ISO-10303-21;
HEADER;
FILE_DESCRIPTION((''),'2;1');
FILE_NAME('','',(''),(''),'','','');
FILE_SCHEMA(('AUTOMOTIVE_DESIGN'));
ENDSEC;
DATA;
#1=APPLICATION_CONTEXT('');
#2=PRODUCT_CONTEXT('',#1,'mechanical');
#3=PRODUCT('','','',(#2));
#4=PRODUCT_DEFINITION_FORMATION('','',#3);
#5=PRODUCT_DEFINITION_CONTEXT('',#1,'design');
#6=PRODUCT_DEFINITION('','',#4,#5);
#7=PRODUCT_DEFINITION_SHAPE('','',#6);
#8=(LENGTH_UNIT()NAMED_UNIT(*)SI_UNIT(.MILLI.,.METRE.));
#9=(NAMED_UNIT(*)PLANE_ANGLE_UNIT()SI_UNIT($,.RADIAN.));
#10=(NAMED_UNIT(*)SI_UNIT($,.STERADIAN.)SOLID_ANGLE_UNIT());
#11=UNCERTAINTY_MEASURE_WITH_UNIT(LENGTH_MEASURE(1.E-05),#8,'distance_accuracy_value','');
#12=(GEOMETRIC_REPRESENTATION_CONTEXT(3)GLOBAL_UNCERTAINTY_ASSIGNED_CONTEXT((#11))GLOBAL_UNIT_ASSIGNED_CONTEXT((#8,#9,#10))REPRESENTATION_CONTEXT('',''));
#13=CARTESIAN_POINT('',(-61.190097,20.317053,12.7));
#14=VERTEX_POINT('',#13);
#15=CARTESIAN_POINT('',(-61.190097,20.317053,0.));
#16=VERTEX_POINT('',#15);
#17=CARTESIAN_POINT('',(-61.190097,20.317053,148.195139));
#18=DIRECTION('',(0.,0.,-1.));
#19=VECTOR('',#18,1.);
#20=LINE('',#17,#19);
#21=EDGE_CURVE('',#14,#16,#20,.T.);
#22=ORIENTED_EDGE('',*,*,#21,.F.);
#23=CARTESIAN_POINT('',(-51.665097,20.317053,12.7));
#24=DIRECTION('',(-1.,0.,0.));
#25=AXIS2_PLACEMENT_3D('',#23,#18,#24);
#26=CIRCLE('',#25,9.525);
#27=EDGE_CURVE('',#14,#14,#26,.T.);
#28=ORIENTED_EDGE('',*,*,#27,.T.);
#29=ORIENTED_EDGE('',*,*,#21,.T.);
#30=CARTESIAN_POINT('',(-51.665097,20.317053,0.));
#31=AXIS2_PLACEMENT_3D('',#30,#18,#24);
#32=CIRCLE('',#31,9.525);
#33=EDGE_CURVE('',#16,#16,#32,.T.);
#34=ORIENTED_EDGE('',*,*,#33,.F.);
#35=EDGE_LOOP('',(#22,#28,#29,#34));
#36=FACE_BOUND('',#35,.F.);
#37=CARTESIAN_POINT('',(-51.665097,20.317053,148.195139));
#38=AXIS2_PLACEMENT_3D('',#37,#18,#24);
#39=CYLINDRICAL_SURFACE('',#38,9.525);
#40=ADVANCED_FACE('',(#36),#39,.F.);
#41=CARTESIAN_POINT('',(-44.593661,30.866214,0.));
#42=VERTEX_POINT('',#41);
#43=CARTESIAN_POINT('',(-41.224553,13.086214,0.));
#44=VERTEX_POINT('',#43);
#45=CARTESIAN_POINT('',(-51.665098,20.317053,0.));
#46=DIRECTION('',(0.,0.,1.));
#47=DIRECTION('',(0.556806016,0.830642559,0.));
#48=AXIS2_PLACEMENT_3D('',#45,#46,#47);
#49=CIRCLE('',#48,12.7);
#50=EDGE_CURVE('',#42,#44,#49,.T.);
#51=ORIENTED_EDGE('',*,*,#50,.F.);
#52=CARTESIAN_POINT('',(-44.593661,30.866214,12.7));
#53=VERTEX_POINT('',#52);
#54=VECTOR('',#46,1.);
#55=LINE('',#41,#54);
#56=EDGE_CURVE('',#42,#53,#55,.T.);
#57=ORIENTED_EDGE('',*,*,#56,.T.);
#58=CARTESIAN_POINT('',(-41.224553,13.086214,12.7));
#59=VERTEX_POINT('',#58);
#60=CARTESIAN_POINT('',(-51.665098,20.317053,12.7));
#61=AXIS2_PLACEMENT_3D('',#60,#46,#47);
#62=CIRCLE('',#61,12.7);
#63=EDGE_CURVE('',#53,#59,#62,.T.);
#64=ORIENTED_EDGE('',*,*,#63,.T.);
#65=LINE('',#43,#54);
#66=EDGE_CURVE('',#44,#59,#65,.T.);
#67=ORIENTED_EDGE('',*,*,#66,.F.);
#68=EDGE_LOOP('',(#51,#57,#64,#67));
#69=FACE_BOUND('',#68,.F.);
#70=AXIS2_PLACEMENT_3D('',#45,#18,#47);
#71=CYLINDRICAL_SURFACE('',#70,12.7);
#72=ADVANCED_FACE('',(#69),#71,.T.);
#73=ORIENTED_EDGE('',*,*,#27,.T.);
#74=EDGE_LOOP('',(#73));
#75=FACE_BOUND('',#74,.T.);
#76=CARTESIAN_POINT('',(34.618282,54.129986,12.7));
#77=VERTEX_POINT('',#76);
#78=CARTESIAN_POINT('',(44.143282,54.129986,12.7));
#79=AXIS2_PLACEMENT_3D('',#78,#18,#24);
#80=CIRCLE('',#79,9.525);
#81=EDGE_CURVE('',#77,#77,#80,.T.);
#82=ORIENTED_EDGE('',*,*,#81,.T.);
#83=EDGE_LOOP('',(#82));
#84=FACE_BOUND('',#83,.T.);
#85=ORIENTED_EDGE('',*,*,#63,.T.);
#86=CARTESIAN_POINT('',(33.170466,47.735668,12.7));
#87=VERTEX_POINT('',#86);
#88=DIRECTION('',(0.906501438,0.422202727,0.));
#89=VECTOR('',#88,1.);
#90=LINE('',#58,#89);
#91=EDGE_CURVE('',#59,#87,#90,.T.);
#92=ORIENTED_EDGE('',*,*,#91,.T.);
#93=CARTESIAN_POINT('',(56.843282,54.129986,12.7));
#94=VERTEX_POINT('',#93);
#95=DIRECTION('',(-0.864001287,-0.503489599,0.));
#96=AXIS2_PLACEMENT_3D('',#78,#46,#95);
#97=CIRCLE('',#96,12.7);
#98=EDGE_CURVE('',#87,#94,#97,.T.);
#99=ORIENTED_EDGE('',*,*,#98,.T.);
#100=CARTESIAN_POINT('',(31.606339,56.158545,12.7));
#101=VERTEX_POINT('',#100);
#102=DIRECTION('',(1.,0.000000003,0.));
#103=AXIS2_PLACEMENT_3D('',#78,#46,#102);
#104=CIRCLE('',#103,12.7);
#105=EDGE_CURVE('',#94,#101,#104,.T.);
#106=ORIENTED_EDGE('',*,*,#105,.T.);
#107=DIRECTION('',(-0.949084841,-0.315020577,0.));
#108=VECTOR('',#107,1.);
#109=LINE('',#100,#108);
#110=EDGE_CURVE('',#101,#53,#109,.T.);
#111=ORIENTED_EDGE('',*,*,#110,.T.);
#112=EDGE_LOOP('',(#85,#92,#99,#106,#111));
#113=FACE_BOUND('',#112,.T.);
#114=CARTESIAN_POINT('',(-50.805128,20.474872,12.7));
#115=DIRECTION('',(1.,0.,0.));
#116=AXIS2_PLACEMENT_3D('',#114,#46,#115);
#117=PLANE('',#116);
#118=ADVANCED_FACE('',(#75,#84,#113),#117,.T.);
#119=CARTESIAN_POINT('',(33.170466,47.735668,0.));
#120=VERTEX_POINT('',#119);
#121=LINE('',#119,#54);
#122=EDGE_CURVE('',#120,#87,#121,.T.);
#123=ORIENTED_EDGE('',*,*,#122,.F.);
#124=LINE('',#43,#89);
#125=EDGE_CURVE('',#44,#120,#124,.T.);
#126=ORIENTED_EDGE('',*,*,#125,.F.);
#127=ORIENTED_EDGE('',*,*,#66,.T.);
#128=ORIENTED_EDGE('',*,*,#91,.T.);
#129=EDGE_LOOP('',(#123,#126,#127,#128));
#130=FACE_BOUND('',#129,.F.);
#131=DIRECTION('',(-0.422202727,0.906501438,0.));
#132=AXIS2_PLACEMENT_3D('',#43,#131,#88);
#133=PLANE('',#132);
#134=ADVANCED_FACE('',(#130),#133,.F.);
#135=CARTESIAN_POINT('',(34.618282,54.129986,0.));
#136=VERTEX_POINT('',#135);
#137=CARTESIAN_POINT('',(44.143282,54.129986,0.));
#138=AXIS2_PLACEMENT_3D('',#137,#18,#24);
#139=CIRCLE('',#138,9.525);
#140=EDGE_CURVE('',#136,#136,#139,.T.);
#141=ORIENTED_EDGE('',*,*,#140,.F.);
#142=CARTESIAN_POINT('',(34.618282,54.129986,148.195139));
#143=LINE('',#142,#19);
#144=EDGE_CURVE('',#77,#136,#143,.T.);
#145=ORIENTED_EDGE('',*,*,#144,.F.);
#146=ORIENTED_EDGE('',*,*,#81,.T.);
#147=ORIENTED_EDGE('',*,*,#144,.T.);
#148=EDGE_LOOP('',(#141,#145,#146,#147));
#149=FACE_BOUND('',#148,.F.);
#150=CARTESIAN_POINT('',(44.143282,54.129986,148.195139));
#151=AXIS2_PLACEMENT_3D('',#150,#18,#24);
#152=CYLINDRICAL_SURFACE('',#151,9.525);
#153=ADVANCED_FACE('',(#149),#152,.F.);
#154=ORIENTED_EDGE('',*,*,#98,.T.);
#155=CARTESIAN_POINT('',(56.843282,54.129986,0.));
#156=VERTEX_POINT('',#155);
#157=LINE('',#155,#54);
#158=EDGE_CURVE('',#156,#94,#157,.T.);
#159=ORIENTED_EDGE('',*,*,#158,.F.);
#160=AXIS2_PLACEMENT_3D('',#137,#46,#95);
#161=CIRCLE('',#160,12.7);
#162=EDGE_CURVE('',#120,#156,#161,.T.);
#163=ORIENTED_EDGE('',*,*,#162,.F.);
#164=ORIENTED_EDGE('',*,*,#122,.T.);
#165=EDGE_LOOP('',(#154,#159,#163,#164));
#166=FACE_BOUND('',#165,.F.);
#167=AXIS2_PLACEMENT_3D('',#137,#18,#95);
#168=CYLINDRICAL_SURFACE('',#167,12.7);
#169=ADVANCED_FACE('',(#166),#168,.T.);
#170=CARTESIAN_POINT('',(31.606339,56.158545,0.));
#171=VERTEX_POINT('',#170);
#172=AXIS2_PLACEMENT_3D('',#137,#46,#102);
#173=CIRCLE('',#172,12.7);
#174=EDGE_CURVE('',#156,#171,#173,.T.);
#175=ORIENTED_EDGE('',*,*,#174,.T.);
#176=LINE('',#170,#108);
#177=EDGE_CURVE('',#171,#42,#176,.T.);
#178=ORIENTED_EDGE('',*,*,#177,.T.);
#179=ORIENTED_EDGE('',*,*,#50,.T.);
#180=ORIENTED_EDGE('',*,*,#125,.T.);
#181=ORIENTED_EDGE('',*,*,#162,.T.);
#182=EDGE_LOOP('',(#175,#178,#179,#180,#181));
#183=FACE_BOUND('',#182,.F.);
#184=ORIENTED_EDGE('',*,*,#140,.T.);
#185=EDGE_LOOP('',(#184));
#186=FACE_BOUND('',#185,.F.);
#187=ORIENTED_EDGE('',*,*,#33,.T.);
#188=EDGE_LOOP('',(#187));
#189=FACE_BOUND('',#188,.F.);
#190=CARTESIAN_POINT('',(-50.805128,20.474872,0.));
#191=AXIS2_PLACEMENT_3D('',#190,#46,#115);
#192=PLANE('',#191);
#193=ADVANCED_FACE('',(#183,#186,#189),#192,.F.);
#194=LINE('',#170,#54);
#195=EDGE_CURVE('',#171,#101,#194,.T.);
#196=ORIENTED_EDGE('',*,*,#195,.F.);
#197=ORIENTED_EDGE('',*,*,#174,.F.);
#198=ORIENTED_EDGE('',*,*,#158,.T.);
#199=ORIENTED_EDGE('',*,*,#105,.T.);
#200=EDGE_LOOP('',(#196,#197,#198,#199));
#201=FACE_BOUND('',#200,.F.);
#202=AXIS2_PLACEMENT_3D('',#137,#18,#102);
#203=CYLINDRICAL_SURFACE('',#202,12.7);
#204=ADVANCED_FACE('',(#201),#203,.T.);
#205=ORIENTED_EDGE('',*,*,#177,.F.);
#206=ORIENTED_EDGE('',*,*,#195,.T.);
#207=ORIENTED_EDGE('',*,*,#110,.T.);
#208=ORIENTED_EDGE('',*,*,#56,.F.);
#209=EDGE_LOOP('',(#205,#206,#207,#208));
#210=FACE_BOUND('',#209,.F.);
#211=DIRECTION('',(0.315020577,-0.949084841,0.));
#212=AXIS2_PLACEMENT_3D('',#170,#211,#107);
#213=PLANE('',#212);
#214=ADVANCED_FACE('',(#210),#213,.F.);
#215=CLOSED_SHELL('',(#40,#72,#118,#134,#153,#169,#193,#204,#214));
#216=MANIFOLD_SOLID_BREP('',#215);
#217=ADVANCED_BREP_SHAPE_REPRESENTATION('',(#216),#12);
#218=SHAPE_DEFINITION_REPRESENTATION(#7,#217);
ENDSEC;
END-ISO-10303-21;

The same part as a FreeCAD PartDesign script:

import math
import FreeCAD as App
import Part
import Sketcher
from FreeCAD import Vector
Q = App.Units.Quantity

doc = App.newDocument("Part")
body = doc.addObject("PartDesign::Body", "Body")

# Sketch on XY plane
sketch1 = body.newObject("Sketcher::SketchObject", "Sketch")
sketch1.AttachmentSupport = (doc.getObject("XY_Plane"), [""])
sketch1.MapMode = "FlatFace"
sketch1.addGeometry([
    Part.ArcOfCircle(Part.Circle(Vector(-51.665098, 20.317053, 0), Vector(0, 0, 1), 12.7), math.radians(56.164801), math.radians(325.294572)),  # 0
    Part.LineSegment(Vector(-41.224553, 13.086214, 0), Vector(33.170466, 47.735668, 0)),  # 1
    Part.ArcOfCircle(Part.Circle(Vector(44.143282, 54.129986, 0), Vector(0, 0, 1), 12.7), math.radians(-149.76886), math.radians(0.000001)),  # 2
    Part.ArcOfCircle(Part.Circle(Vector(44.143282, 54.129986, 0), Vector(0, 0, 1), 12.7), math.radians(0), math.radians(170.80883)),  # 3
    Part.LineSegment(Vector(31.606339, 56.158545, 0), Vector(-44.593661, 30.866214, 0)),  # 4
], False)
sketch1.addConstraint([
    Sketcher.Constraint("Coincident", 0, 2, 1, 1),
    Sketcher.Constraint("Coincident", 1, 2, 2, 1),
    Sketcher.Constraint("Tangent", 2, 2, 3, 1),
    Sketcher.Constraint("Coincident", 3, 2, 4, 1),
    Sketcher.Constraint("Coincident", 4, 2, 0, 1),
    Sketcher.Constraint("Equal", 0, 2),
    Sketcher.Constraint("Equal", 2, 3),
    Sketcher.Constraint("Horizontal", 3, 3, 2, 2),
    Sketcher.Constraint("Radius", 0, Q("0.5 in")),
    Sketcher.Constraint("DistanceX", 4, 2, 3, 2, Q("3 in")),
    Sketcher.Constraint("DistanceY", 0, 2, 4, 2, Q("0.7 in")),
    Sketcher.Constraint("Distance", 4, 80.28787),
    Sketcher.Constraint("DistanceX", -1, 1, 2, 2, 56.843282),
    Sketcher.Constraint("DistanceX", -1, 1, 3, 2, 31.606339),
    Sketcher.Constraint("DistanceX", 0, 3, 2, 3, 95.80838),
    Sketcher.Constraint("DistanceX", 0, 2, 1, 2, 74.395019),
    Sketcher.Constraint("DistanceY", -1, 1, 0, 3, 20.317053),
])
pad1 = body.newObject("PartDesign::Pad", "Pad")
pad1.Profile = sketch1
pad1.Length = Q("0.5 in")

# Sketch on XY plane
sketch2 = body.newObject("Sketcher::SketchObject", "Sketch001")
sketch2.AttachmentSupport = (doc.getObject("XY_Plane"), [""])
sketch2.MapMode = "FlatFace"
sketch2.AttachmentOffset = App.Placement(Vector(0, 0, 0.5 * 25.4), App.Rotation())
sketch2.addGeometry([
    Part.Circle(Vector(-51.665097, 20.317053, 0), Vector(0, 0, 1), 9.525),
    Part.Circle(Vector(44.143282, 54.129986, 0), Vector(0, 0, 1), 9.525),
], False)
sketch2.addConstraint([
    Sketcher.Constraint("Equal", 0, 1),
    Sketcher.Constraint("Diameter", 0, Q("0.75 in")),
    Sketcher.Constraint("DistanceX", 0, 3, 1, 3, 95.808379),
    Sketcher.Constraint("DistanceX", 0, 3, -1, 1, 51.665097),
    Sketcher.Constraint("DistanceY", -1, 1, 0, 3, 20.317053),
    Sketcher.Constraint("DistanceY", -1, 1, 1, 3, 54.129986),
])
doc.recompute()
hole = body.newObject("PartDesign::Hole", "Hole")
hole.Profile = sketch2
hole.ThreadType = "None"
hole.Diameter = Q("0.75 in")
hole.DepthType = "ThroughAll"

doc.recompute()
